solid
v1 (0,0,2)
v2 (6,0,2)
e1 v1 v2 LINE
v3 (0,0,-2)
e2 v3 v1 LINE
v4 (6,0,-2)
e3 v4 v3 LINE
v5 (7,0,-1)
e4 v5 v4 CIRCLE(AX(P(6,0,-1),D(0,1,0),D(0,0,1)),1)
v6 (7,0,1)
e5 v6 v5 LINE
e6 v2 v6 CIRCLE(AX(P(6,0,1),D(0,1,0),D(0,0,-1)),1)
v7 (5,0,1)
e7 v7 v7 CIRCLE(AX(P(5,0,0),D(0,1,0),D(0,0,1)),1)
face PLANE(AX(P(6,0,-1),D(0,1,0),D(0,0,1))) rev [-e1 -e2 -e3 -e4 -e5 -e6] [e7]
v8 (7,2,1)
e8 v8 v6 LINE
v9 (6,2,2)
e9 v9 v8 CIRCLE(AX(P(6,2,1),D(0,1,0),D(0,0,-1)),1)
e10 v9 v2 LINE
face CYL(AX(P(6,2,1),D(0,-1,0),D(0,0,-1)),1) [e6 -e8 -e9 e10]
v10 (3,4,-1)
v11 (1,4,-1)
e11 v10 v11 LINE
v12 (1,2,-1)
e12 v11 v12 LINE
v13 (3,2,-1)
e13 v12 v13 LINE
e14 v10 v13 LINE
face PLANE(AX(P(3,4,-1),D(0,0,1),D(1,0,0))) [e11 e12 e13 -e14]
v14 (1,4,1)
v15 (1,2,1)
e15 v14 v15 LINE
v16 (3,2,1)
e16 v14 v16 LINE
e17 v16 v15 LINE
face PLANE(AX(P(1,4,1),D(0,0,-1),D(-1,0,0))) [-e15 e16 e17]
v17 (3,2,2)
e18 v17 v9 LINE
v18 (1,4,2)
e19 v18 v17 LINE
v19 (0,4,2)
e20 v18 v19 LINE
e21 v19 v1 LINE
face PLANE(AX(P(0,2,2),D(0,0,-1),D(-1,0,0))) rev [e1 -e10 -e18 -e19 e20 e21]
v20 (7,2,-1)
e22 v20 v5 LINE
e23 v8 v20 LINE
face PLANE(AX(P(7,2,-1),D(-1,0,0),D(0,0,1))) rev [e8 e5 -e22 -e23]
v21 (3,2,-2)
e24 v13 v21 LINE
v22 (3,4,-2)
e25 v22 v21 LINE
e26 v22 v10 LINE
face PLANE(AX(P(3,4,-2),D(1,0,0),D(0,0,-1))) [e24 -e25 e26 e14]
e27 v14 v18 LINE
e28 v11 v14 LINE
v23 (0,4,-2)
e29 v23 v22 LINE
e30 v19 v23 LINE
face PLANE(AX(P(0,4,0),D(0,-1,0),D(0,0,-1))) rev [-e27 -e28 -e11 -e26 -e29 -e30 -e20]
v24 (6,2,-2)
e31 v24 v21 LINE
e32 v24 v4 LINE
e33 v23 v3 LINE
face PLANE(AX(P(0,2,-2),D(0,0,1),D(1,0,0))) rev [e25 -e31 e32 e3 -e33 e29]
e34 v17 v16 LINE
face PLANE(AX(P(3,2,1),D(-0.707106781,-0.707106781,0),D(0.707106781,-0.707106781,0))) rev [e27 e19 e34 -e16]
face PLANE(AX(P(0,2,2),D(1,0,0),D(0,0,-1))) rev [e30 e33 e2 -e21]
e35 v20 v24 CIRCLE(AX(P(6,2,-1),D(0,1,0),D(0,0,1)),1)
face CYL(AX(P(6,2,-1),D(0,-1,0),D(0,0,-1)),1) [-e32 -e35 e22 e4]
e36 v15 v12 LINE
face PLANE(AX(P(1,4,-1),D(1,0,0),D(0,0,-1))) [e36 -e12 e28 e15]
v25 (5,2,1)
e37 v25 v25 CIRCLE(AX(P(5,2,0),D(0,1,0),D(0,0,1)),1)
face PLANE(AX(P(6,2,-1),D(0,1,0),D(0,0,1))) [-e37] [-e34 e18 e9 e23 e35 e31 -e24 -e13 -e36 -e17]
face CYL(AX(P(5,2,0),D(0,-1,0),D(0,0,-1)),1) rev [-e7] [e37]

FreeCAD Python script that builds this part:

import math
import FreeCAD as App
import Part
import Sketcher


def add_polygon(sketch, points):
    """Adds a closed chain of lines whose ends are joined by coincident constraints."""
    first, n = sketch.GeometryCount, len(points)
    for a, b in zip(points, points[1:] + points[:1]):
        sketch.addGeometry(Part.LineSegment(App.Vector(*a, 0), App.Vector(*b, 0)), False)
    for i in range(n):
        sketch.addConstraint(Sketcher.Constraint("Coincident", first + i, 2, first + (i + 1) % n, 1))

doc = App.newDocument("Part")
body = doc.addObject("PartDesign::Body", "Body")

# Sketch on XZ plane
sketch1 = doc.addObject("Sketcher::SketchObject", "Sketch")
body.addObject(sketch1)
sketch1.AttachmentSupport = (doc.XZ_Plane, [""])
sketch1.MapMode = "FlatFace"
sketch1.addGeometry([
    Part.LineSegment(App.Vector(0, -2, 0), App.Vector(0, 2, 0)),  # 0
    Part.LineSegment(App.Vector(0, 2, 0), App.Vector(6, 2, 0)),  # 1
    Part.ArcOfCircle(Part.Circle(App.Vector(6, 1, 0), App.Vector(0, 0, 1), 1), math.radians(0), math.radians(90)),  # 2
    Part.LineSegment(App.Vector(7, 1, 0), App.Vector(7, -1, 0)),  # 3
    Part.ArcOfCircle(Part.Circle(App.Vector(6, -1, 0), App.Vector(0, 0, 1), 1), math.radians(-90), math.radians(0)),  # 4
    Part.LineSegment(App.Vector(6, -2, 0), App.Vector(0, -2, 0)),  # 5
    Part.Circle(App.Vector(5, 0, 0), App.Vector(0, 0, 1), 1),  # 6
], False)
sketch1.addConstraint([
    Sketcher.Constraint("Coincident", 0, 2, 1, 1),
    Sketcher.Constraint("Tangent", 1, 2, 2, 2),
    Sketcher.Constraint("Tangent", 2, 1, 3, 1),
    Sketcher.Constraint("Tangent", 3, 2, 4, 2),
    Sketcher.Constraint("Tangent", 4, 1, 5, 1),
    Sketcher.Constraint("Coincident", 5, 2, 0, 1),
    Sketcher.Constraint("Vertical", 0),
    Sketcher.Constraint("Horizontal", 1),
    Sketcher.Constraint("Vertical", 3),
    Sketcher.Constraint("Horizontal", 5),
    Sketcher.Constraint("Equal", 2, 4),
    Sketcher.Constraint("Equal", 4, 6),
    Sketcher.Constraint("Symmetric", 0, 2, 5, 2, -1, 1),
    Sketcher.Constraint("PointOnObject", 6, 3, -1),
    Sketcher.Constraint("Diameter", 6, 2.0),
    Sketcher.Constraint("DistanceX", 1, 1, 1, 2, 6.0),
    Sketcher.Constraint("DistanceY", 0, 1, 0, 2, 4.0),
    Sketcher.Constraint("DistanceX", -1, 1, 6, 3, 5.0),
])
pad1 = doc.addObject("PartDesign::Pad", "Pad")
body.addObject(pad1)
pad1.Profile = sketch1
pad1.Length = 2
pad1.Reversed = True

# Sketch on XZ plane
sketch2 = doc.addObject("Sketcher::SketchObject", "Sketch001")
body.addObject(sketch2)
sketch2.AttachmentSupport = (doc.XZ_Plane, [""])
sketch2.MapMode = "FlatFace"
add_polygon(sketch2, [(0, -2), (0, 2), (3, 2), (3, 1), (1, 1), (1, -1), (3, -1), (3, -2)])  # lines 0-7
sketch2.addConstraint([
    Sketcher.Constraint("Vertical", 0),
    Sketcher.Constraint("Horizontal", 1),
    Sketcher.Constraint("Vertical", 2),
    Sketcher.Constraint("Horizontal", 3),
    Sketcher.Constraint("Vertical", 4),
    Sketcher.Constraint("Horizontal", 5),
    Sketcher.Constraint("Vertical", 6),
    Sketcher.Constraint("Horizontal", 7),
    Sketcher.Constraint("Symmetric", 0, 2, 7, 2, -1, 1),
    Sketcher.Constraint("Symmetric", 2, 2, 5, 2, -1),
    Sketcher.Constraint("Equal", 5, 4),
    Sketcher.Constraint("DistanceX", 1, 1, 1, 2, 3.0),
    Sketcher.Constraint("DistanceX", 3, 2, 3, 1, 2.0),
    Sketcher.Constraint("DistanceY", 0, 1, 0, 2, 4.0),
])
pad2 = doc.addObject("PartDesign::Pad", "Pad001")
body.addObject(pad2)
pad2.Profile = sketch2
pad2.Length = 4
pad2.Reversed = True

# Sketch on XY plane
sketch3 = doc.addObject("Sketcher::SketchObject", "Sketch002")
body.addObject(sketch3)
sketch3.AttachmentSupport = (doc.XY_Plane, [""])
sketch3.MapMode = "FlatFace"
sketch3.AttachmentOffset = App.Placement(App.Vector(0, 0, 2), App.Rotation())
add_polygon(sketch3, [(1, 4), (3, 2), (3, 4)])  # lines 0-2
sketch3.addConstraint([
    Sketcher.Constraint("Vertical", 1),
    Sketcher.Constraint("Horizontal", 2),
    Sketcher.Constraint("Equal", 2, 1),
    Sketcher.Constraint("DistanceX", 2, 2, 2, 1, 2.0),
    Sketcher.Constraint("DistanceX", -1, 1, 0, 2, 3.0),
    Sketcher.Constraint("DistanceY", -1, 1, 0, 2, 2.0),
])
pocket1 = doc.addObject("PartDesign::Pocket", "Pocket")
body.addObject(pocket1)
pocket1.Profile = sketch3
pocket1.Length = 1

doc.recompute()
